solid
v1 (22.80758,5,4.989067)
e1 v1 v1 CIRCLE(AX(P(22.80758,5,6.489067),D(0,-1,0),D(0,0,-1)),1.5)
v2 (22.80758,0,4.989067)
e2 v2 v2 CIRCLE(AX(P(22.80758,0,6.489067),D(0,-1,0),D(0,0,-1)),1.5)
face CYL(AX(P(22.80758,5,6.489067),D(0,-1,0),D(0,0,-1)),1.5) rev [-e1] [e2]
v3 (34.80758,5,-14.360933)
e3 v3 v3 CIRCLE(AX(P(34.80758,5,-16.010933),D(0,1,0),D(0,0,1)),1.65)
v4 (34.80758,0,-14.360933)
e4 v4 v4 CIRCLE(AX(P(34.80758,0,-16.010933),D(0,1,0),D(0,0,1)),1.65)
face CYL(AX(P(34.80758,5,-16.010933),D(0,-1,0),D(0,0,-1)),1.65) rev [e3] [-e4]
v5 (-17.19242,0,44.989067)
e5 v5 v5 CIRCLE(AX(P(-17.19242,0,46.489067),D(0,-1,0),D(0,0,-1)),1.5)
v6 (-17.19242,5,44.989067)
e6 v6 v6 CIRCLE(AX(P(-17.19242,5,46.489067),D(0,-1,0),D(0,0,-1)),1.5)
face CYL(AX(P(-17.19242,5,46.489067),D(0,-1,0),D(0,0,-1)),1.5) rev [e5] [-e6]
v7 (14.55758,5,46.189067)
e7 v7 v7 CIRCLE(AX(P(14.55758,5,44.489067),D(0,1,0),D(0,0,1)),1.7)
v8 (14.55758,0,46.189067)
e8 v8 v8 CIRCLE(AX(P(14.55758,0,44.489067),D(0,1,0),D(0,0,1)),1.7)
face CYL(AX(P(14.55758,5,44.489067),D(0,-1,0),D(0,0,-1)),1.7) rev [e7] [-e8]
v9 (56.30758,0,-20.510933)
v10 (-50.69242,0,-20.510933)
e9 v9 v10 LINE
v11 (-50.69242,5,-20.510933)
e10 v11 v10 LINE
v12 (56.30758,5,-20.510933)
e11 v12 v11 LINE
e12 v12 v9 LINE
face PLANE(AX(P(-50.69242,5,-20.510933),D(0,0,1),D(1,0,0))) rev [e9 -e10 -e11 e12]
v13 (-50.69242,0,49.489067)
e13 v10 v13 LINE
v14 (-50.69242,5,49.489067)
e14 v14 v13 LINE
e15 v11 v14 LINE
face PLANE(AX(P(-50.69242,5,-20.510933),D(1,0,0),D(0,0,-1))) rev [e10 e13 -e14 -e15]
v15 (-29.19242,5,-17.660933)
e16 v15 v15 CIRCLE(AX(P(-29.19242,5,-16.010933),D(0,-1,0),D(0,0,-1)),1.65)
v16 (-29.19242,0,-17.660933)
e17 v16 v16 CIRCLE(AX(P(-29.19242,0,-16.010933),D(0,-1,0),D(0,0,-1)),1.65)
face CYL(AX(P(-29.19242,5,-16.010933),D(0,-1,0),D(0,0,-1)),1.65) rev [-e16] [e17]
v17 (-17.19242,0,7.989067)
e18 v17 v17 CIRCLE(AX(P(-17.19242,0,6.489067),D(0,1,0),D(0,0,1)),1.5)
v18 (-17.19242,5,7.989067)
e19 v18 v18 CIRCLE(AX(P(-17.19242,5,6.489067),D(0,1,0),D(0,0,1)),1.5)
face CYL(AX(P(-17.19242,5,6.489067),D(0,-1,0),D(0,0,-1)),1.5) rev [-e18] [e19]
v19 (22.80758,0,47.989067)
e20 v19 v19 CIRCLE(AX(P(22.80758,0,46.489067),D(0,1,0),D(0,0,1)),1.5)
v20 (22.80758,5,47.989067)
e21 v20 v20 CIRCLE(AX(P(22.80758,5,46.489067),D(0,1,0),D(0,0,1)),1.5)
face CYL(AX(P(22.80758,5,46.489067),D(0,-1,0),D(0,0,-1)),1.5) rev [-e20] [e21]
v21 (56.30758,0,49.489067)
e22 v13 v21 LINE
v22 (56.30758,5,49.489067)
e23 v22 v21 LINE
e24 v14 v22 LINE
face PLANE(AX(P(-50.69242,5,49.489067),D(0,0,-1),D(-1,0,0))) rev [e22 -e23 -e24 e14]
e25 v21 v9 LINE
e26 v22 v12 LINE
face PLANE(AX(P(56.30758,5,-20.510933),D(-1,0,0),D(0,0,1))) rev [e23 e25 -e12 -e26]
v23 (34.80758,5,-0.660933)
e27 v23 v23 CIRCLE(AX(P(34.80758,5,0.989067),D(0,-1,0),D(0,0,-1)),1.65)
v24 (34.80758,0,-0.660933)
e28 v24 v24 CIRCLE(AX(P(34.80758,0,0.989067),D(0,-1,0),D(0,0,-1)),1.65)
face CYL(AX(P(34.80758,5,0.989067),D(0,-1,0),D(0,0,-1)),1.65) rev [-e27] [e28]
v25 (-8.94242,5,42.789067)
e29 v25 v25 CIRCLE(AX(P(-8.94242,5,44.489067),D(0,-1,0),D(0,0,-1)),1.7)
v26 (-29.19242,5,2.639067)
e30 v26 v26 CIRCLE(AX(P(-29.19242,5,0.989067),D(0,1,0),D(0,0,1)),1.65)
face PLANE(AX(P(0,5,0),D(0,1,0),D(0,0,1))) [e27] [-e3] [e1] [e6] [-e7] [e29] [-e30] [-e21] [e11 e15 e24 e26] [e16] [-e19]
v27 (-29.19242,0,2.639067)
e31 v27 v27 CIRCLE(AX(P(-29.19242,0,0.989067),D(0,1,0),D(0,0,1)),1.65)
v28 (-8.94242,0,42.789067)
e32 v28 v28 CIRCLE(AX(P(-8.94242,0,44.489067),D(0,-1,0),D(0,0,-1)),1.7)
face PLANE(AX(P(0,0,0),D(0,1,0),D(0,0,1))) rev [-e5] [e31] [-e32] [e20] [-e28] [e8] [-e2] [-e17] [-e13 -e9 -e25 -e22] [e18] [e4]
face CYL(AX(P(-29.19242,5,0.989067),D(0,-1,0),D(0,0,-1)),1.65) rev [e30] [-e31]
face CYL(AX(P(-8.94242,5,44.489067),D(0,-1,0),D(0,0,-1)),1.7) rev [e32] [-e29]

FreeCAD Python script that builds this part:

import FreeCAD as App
import Part
import Sketcher

V = App.Vector
Q = App.Units.Quantity

doc = App.newDocument("Part")
body = doc.addObject("PartDesign::Body", "Body")

# Sketch on XZ plane
sketch1 = doc.addObject("Sketcher::SketchObject", "Sketch")
body.addObject(sketch1)
sketch1.AttachmentSupport = (doc.XZ_Plane, [""])
sketch1.MapMode = "FlatFace"
sketch1.addGeometry([
    Part.LineSegment(V(-50.69242, -20.510933, 0), V(-50.69242, 49.489067, 0)),
    Part.LineSegment(V(-50.69242, 49.489067, 0), V(56.30758, 49.489067, 0)),
    Part.LineSegment(V(56.30758, 49.489067, 0), V(56.30758, -20.510933, 0)),
    Part.LineSegment(V(56.30758, -20.510933, 0), V(-50.69242, -20.510933, 0)),
], False)
sketch1.addConstraint([
    Sketcher.Constraint("Coincident", 0, 2, 1, 1),
    Sketcher.Constraint("Coincident", 1, 2, 2, 1),
    Sketcher.Constraint("Coincident", 2, 2, 3, 1),
    Sketcher.Constraint("Coincident", 3, 2, 0, 1),
    Sketcher.Constraint("Vertical", 0),
    Sketcher.Constraint("Horizontal", 1),
    Sketcher.Constraint("Vertical", 2),
    Sketcher.Constraint("Horizontal", 3),
    Sketcher.Constraint("DistanceX", 1, 1, 1, 2, Q("107 mm")),
    Sketcher.Constraint("DistanceY", 0, 1, 0, 2, Q("70 mm")),
    Sketcher.Constraint("DistanceX", 0, 2, -1, 1, Q("50.69242 mm")),
    Sketcher.Constraint("DistanceY", -1, 1, 0, 2, Q("49.489067 mm")),
])
pad1 = doc.addObject("PartDesign::Pad", "Pad")
body.addObject(pad1)
pad1.Profile = sketch1
pad1.Length = 5
pad1.Reversed = True

# Sketch on XZ plane
sketch2 = doc.addObject("Sketcher::SketchObject", "Sketch001")
body.addObject(sketch2)
sketch2.AttachmentSupport = (doc.XZ_Plane, [""])
sketch2.MapMode = "FlatFace"
sketch2.addGeometry([
    Part.Circle(V(-8.94242, 44.489067, 0), V(0, 0, 1), 1.7),  # 0
    Part.Circle(V(-29.19242, -16.010933, 0), V(0, 0, 1), 1.65),  # 1
    Part.Circle(V(-29.19242, 0.989067, 0), V(0, 0, 1), 1.65),  # 2
    Part.Circle(V(14.55758, 44.489067, 0), V(0, 0, 1), 1.7),  # 3
    Part.Circle(V(34.80758, -16.010933, 0), V(0, 0, 1), 1.65),  # 4
    Part.Circle(V(34.80758, 0.989067, 0), V(0, 0, 1), 1.65),  # 5
    Part.Circle(V(-17.19242, 46.489067, 0), V(0, 0, 1), 1.5),  # 6
    Part.Circle(V(-17.19242, 6.489067, 0), V(0, 0, 1), 1.5),  # 7
    Part.Circle(V(22.80758, 46.489067, 0), V(0, 0, 1), 1.5),  # 8
    Part.Circle(V(22.80758, 6.489067, 0), V(0, 0, 1), 1.5),  # 9
], False)
sketch2.addConstraint([
    Sketcher.Constraint("Equal", 1, 2),
    Sketcher.Constraint("Equal", 0, 3),
    Sketcher.Constraint("Equal", 2, 4),
    Sketcher.Constraint("Equal", 4, 5),
    Sketcher.Constraint("Equal", 6, 7),
    Sketcher.Constraint("Equal", 7, 8),
    Sketcher.Constraint("Equal", 8, 9),
    Sketcher.Constraint("Horizontal", 0, 3, 3, 3),
    Sketcher.Constraint("Horizontal", 1, 3, 4, 3),
    Sketcher.Constraint("Horizontal", 2, 3, 5, 3),
    Sketcher.Constraint("Horizontal", 6, 3, 8, 3),
    Sketcher.Constraint("Horizontal", 7, 3, 9, 3),
    Sketcher.Constraint("Vertical", 1, 3, 2, 3),
    Sketcher.Constraint("Vertical", 4, 3, 5, 3),
    Sketcher.Constraint("Vertical", 6, 3, 7, 3),
    Sketcher.Constraint("Vertical", 8, 3, 9, 3),
    Sketcher.Constraint("Diameter", 6, Q("3 mm")),
    Sketcher.Constraint("Diameter", 0, Q("3.4 mm")),
    Sketcher.Constraint("Diameter", 1, Q("3.3 mm")),
    Sketcher.Constraint("DistanceY", 1, 3, 2, 3, Q("17 mm")),
    Sketcher.Constraint("DistanceX", 1, 3, 4, 3, Q("64 mm")),
    Sketcher.Constraint("DistanceY", 0, 3, 6, 3, Q("2 mm")),
    Sketcher.Constraint("DistanceX", 2, 3, 6, 3, Q("12 mm")),
    Sketcher.Constraint("DistanceY", 7, 3, 0, 3, Q("38 mm")),
    Sketcher.Constraint("DistanceX", 6, 3, 8, 3, Q("40 mm")),
    Sketcher.Constraint("DistanceY", 1, 3, 0, 3, Q("60.5 mm")),
    Sketcher.Constraint("DistanceX", 0, 3, 3, 3, Q("23.5 mm")),
    Sketcher.Constraint("DistanceX", 1, 3, 0, 3, Q("20.25 mm")),
    Sketcher.Constraint("DistanceX", 0, 3, -1, 1, Q("8.94242 mm")),
    Sketcher.Constraint("DistanceY", -1, 1, 0, 3, Q("44.489067 mm")),
])
pocket1 = doc.addObject("PartDesign::Pocket", "Pocket")
body.addObject(pocket1)
pocket1.Profile = sketch2
pocket1.Length = 5

doc.recompute()
